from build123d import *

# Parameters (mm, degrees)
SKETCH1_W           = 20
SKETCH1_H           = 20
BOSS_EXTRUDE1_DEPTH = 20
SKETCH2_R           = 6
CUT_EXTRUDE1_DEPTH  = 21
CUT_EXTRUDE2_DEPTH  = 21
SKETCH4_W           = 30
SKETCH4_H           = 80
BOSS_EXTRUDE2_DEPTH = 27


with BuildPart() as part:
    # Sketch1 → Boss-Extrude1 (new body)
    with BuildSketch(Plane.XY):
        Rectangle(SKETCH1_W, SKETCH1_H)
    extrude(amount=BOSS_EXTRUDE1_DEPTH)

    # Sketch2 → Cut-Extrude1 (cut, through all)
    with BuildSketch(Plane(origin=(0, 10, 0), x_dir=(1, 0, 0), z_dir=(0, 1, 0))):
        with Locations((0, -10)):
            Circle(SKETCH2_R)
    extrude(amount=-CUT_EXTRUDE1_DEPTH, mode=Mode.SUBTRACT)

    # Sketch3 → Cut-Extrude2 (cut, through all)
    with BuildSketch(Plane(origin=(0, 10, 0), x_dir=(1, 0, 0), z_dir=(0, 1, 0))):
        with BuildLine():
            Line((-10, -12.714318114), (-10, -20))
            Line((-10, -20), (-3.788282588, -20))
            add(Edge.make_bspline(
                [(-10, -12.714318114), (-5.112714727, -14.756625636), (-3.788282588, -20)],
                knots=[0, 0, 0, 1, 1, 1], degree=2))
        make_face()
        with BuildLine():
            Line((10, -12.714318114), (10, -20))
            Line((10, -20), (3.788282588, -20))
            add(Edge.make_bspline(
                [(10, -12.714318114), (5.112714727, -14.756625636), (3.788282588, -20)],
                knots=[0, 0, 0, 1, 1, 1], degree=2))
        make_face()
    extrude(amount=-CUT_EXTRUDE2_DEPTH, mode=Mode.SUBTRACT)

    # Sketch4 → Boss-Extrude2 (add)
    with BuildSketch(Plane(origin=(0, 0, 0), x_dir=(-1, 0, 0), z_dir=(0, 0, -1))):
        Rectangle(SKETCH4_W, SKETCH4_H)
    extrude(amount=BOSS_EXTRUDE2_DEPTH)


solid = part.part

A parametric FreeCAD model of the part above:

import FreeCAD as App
import Part
import Sketcher
from FreeCAD import Vector
Q = App.Units.Quantity


def add_polygon(sketch, points):
    """Adds a closed chain of lines whose ends are joined by coincident constraints."""
    first, n = sketch.GeometryCount, len(points)
    for a, b in zip(points, points[1:] + points[:1]):
        sketch.addGeometry(Part.LineSegment(App.Vector(*a, 0), App.Vector(*b, 0)), False)
    for i in range(n):
        sketch.addConstraint(Sketcher.Constraint("Coincident", first + i, 2, first + (i + 1) % n, 1))

doc = App.newDocument("Part")
body = doc.addObject("PartDesign::Body", "Body")

# Sketch on XY plane
sketch1 = doc.addObject("Sketcher::SketchObject", "Sketch")
body.addObject(sketch1)
sketch1.AttachmentSupport = (doc.XY_Plane, [""])
sketch1.MapMode = "FlatFace"
add_polygon(sketch1, [(-10, 10), (-10, -10), (10, -10), (10, 10)])  # lines 0-3
sketch1.addConstraint(Sketcher.Constraint("Vertical", 0))
sketch1.addConstraint(Sketcher.Constraint("Horizontal", 1))
sketch1.addConstraint(Sketcher.Constraint("Vertical", 2))
sketch1.addConstraint(Sketcher.Constraint("Horizontal", 3))
sketch1.addConstraint(Sketcher.Constraint("Symmetric", 0, 2, 2, 2, -1, 1))
sketch1.addConstraint(Sketcher.Constraint("Equal", 3, 0))
sketch1.addConstraint(Sketcher.Constraint("DistanceX", 1, 1, 1, 2, Q("20 mm")))
pad1 = doc.addObject("PartDesign::Pad", "Pad")
body.addObject(pad1)
pad1.Profile = sketch1
pad1.Length = 20

# Sketch on XZ plane
sketch2 = doc.addObject("Sketcher::SketchObject", "Sketch001")
body.addObject(sketch2)
sketch2.AttachmentSupport = (doc.XZ_Plane, [""])
sketch2.MapMode = "FlatFace"
sketch2.AttachmentOffset = App.Placement(Vector(0, 0, -10), App.Rotation())
sketch2.addGeometry(Part.Circle(Vector(0, 10, 0), Vector(0, 0, 1), 6), False)
sketch2.addConstraint(Sketcher.Constraint("PointOnObject", 0, 3, -2))
sketch2.addConstraint(Sketcher.Constraint("Diameter", 0, Q("12 mm")))
sketch2.addConstraint(Sketcher.Constraint("DistanceY", -1, 1, 0, 3, Q("10 mm")))
pocket1 = doc.addObject("PartDesign::Pocket", "Pocket")
body.addObject(pocket1)
pocket1.Profile = sketch2
pocket1.Type = "ThroughAll"
pocket1.Reversed = True

# Sketch on XZ plane
sketch3 = doc.addObject("Sketcher::SketchObject", "Sketch002")
body.addObject(sketch3)
sketch3.AttachmentSupport = (doc.XZ_Plane, [""])
sketch3.MapMode = "FlatFace"
sketch3.AttachmentOffset = App.Placement(Vector(0, 0, -10), App.Rotation())
sketch3.addGeometry(Part.LineSegment(Vector(-10, 12.714318, 0), Vector(-10, 20, 0)), False)
sketch3.addGeometry(Part.LineSegment(Vector(-10, 20, 0), Vector(-3.788283, 20, 0)), False)
sketch3.addGeometry(Part.BSplineCurve([Vector(-10, 12.714318, 0), Vector(-5.112715, 14.756626, 0), Vector(-3.788283, 20, 0)], [3, 3], [0, 1], False, 2, [1, 1, 1], False), False)
sketch3.addGeometry(Part.LineSegment(Vector(10, 20, 0), Vector(10, 12.714318, 0)), False)
sketch3.addGeometry(Part.BSplineCurve([Vector(10, 12.714318, 0), Vector(5.112715, 14.756626, 0), Vector(3.788283, 20, 0)], [3, 3], [0, 1], False, 2, [1, 1, 1], False), False)
sketch3.addGeometry(Part.LineSegment(Vector(3.788283, 20, 0), Vector(10, 20, 0)), False)
sketch3.addConstraint(Sketcher.Constraint("Block", 2))
sketch3.addConstraint(Sketcher.Constraint("Block", 4))
sketch3.addConstraint(Sketcher.Constraint("Coincident", 0, 2, 1, 1))
sketch3.addConstraint(Sketcher.Constraint("Coincident", 1, 2, 2, 2))
sketch3.addConstraint(Sketcher.Constraint("Coincident", 2, 1, 0, 1))
sketch3.addConstraint(Sketcher.Constraint("Coincident", 3, 2, 4, 1))
sketch3.addConstraint(Sketcher.Constraint("Coincident", 4, 2, 5, 1))
sketch3.addConstraint(Sketcher.Constraint("Coincident", 5, 2, 3, 1))
sketch3.addConstraint(Sketcher.Constraint("Vertical", 0))
sketch3.addConstraint(Sketcher.Constraint("Horizontal", 1))
sketch3.addConstraint(Sketcher.Constraint("Vertical", 3))
sketch3.addConstraint(Sketcher.Constraint("Horizontal", 5))
pocket2 = doc.addObject("PartDesign::Pocket", "Pocket001")
body.addObject(pocket2)
pocket2.Profile = sketch3
pocket2.Type = "ThroughAll"
pocket2.Reversed = True

# Sketch on XY plane
sketch4 = doc.addObject("Sketcher::SketchObject", "Sketch003")
body.addObject(sketch4)
sketch4.AttachmentSupport = (doc.XY_Plane, [""])
sketch4.MapMode = "FlatFace"
add_polygon(sketch4, [(15, 40), (15, -40), (-15, -40), (-15, 40)])  # lines 0-3
sketch4.addConstraint(Sketcher.Constraint("Vertical", 0))
sketch4.addConstraint(Sketcher.Constraint("Horizontal", 1))
sketch4.addConstraint(Sketcher.Constraint("Vertical", 2))
sketch4.addConstraint(Sketcher.Constraint("Horizontal", 3))
sketch4.addConstraint(Sketcher.Constraint("Symmetric", 0, 2, 2, 2, -1, 1))
sketch4.addConstraint(Sketcher.Constraint("DistanceX", 1, 2, 1, 1, Q("30 mm")))
sketch4.addConstraint(Sketcher.Constraint("DistanceY", 0, 2, 0, 1, Q("80 mm")))
pad2 = doc.addObject("PartDesign::Pad", "Pad001")
body.addObject(pad2)
pad2.Profile = sketch4
pad2.Length = 27
pad2.Reversed = True

doc.recompute()
